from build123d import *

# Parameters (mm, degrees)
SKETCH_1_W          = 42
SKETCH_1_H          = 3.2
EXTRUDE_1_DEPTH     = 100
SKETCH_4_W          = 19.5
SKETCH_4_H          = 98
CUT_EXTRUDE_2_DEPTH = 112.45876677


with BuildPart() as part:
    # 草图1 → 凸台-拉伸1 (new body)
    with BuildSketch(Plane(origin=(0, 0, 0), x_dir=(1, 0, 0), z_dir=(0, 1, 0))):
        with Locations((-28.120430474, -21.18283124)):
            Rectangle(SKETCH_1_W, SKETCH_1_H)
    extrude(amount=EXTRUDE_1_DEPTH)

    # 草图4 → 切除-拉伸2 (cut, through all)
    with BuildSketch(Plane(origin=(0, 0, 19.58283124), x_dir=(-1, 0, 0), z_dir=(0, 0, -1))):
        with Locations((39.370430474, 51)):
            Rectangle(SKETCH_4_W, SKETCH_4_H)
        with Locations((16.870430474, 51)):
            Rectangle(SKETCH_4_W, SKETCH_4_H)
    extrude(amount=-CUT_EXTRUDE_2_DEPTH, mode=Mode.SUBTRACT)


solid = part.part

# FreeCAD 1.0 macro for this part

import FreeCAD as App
import Part
import Sketcher

V = App.Vector

doc = App.newDocument("Part")
params = doc.addObject("Spreadsheet::Sheet", "Params")
for row, (alias, value) in enumerate([
    ("sketch1_width", "42 mm"),
    ("sketch1_height", "3.2 mm"),
    ("pad1_length", "100 mm"),
    ("sketch2_height", "98 mm"),
    ("sketch2_width", "19.5 mm"),
], start=1):
    params.set(f"A{row}", alias)
    params.set(f"B{row}", "=" + value)
    params.setAlias(f"B{row}", alias)

body = doc.addObject("PartDesign::Body", "Body")

# Sketch on XZ plane
sketch1 = doc.addObject("Sketcher::SketchObject", "Sketch")
body.addObject(sketch1)
sketch1.AttachmentSupport = (doc.XZ_Plane, [""])
sketch1.MapMode = "FlatFace"
sketch1.addGeometry([
    Part.LineSegment(V(-49.12043, 19.582831, 0), V(-49.12043, 22.782831, 0)),
    Part.LineSegment(V(-49.12043, 22.782831, 0), V(-7.12043, 22.782831, 0)),
    Part.LineSegment(V(-7.12043, 22.782831, 0), V(-7.12043, 19.582831, 0)),
    Part.LineSegment(V(-7.12043, 19.582831, 0), V(-49.12043, 19.582831, 0)),
], False)
sketch1.addConstraint([
    Sketcher.Constraint("Coincident", 0, 2, 1, 1),
    Sketcher.Constraint("Coincident", 1, 2, 2, 1),
    Sketcher.Constraint("Coincident", 2, 2, 3, 1),
    Sketcher.Constraint("Coincident", 3, 2, 0, 1),
    Sketcher.Constraint("Vertical", 0),
    Sketcher.Constraint("Horizontal", 1),
    Sketcher.Constraint("Vertical", 2),
    Sketcher.Constraint("Horizontal", 3),
    Sketcher.Constraint("DistanceX", 1, 1, 1, 2, 42.0),
    Sketcher.Constraint("DistanceY", 0, 1, 0, 2, 3.2),
    Sketcher.Constraint("DistanceX", 0, 2, -1, 1, 49.12043),
    Sketcher.Constraint("DistanceY", -1, 1, 0, 2, 22.782831),
])
sketch1.setExpression("Constraints[8]", "Params.sketch1_width")
sketch1.setExpression("Constraints[9]", "Params.sketch1_height")
pad1 = doc.addObject("PartDesign::Pad", "Pad")
body.addObject(pad1)
pad1.Profile = sketch1
pad1.setExpression("Length", "Params.pad1_length")
pad1.Reversed = True

# Sketch on XY plane
sketch2 = doc.addObject("Sketcher::SketchObject", "Sketch001")
body.addObject(sketch2)
sketch2.AttachmentSupport = (doc.XY_Plane, [""])
sketch2.MapMode = "FlatFace"
sketch2.AttachmentOffset = App.Placement(V(0, 0, 19.582831), App.Rotation())
sketch2.addGeometry([
    Part.LineSegment(V(-29.62043, 100, 0), V(-29.62043, 2, 0)),  # 0
    Part.LineSegment(V(-29.62043, 2, 0), V(-49.12043, 2, 0)),  # 1
    Part.LineSegment(V(-49.12043, 2, 0), V(-49.12043, 100, 0)),  # 2
    Part.LineSegment(V(-49.12043, 100, 0), V(-29.62043, 100, 0)),  # 3
    Part.LineSegment(V(-7.12043, 100, 0), V(-7.12043, 2, 0)),  # 4
    Part.LineSegment(V(-7.12043, 2, 0), V(-26.62043, 2, 0)),  # 5
    Part.LineSegment(V(-26.62043, 2, 0), V(-26.62043, 100, 0)),  # 6
    Part.LineSegment(V(-26.62043, 100, 0), V(-7.12043, 100, 0)),  # 7
], False)
sketch2.addConstraint([
    Sketcher.Constraint("Coincident", 0, 2, 1, 1),
    Sketcher.Constraint("Coincident", 1, 2, 2, 1),
    Sketcher.Constraint("Coincident", 2, 2, 3, 1),
    Sketcher.Constraint("Coincident", 3, 2, 0, 1),
    Sketcher.Constraint("Coincident", 4, 2, 5, 1),
    Sketcher.Constraint("Coincident", 5, 2, 6, 1),
    Sketcher.Constraint("Coincident", 6, 2, 7, 1),
    Sketcher.Constraint("Coincident", 7, 2, 4, 1),
    Sketcher.Constraint("Vertical", 0),
    Sketcher.Constraint("Horizontal", 1),
    Sketcher.Constraint("Vertical", 2),
    Sketcher.Constraint("Horizontal", 3),
    Sketcher.Constraint("Vertical", 4),
    Sketcher.Constraint("Horizontal", 5),
    Sketcher.Constraint("Vertical", 6),
    Sketcher.Constraint("Horizontal", 7),
    Sketcher.Constraint("Horizontal", 1, 2, 4, 2),
    Sketcher.Constraint("Horizontal", 3, 2, 6, 2),
    Sketcher.Constraint("Equal", 3, 5),
    Sketcher.Constraint("DistanceY", 0, 2, 0, 1, 98.0),
    Sketcher.Constraint("DistanceX", 1, 2, 1, 1, 19.5),
    Sketcher.Constraint("DistanceY", -1, 1, 0, 2, 2.0),
    Sketcher.Constraint("DistanceX", 1, 2, 4, 2, 42.0),
    Sketcher.Constraint("DistanceX", 0, 2, -1, 1, 29.62043),
])
sketch2.setExpression("Constraints[19]", "Params.sketch2_height")
sketch2.setExpression("Constraints[20]", "Params.sketch2_width")
pocket1 = doc.addObject("PartDesign::Pocket", "Pocket")
body.addObject(pocket1)
pocket1.Profile = sketch2
pocket1.Type = "ThroughAll"
pocket1.Reversed = True

doc.recompute()
